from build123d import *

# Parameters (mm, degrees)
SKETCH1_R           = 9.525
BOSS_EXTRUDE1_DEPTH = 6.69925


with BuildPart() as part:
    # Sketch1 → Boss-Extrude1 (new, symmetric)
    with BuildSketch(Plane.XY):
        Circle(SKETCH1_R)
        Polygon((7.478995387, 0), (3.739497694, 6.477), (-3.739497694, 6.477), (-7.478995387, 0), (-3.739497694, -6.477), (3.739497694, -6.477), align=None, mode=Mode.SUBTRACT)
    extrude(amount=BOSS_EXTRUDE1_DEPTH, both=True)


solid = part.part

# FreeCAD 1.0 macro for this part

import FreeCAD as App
import Part
import Sketcher

V = App.Vector
Q = App.Units.Quantity


def add_polygon(sketch, points):
    """Adds a closed chain of lines whose ends are joined by coincident constraints."""
    first, n = sketch.GeometryCount, len(points)
    for a, b in zip(points, points[1:] + points[:1]):
        sketch.addGeometry(Part.LineSegment(App.Vector(*a, 0), App.Vector(*b, 0)), False)
    for i in range(n):
        sketch.addConstraint(Sketcher.Constraint("Coincident", first + i, 2, first + (i + 1) % n, 1))

doc = App.newDocument("Part")
body = doc.addObject("PartDesign::Body", "Body")

sketch1 = body.newObject("Sketcher::SketchObject", "Sketch")
sketch1.AttachmentSupport = (doc.getObject("XY_Plane"), [""])
sketch1.MapMode = "FlatFace"
sketch1.addGeometry(Part.Circle(V(0, 0, 0), V(0, 0, 1), 10), False)
add_polygon(sketch1, [(4, 6), (7, 0), (4, -6), (-4, -6), (-7, 0), (-4, 6)])
sketch1.addConstraint([
    Sketcher.Constraint("Horizontal", 3),
    Sketcher.Constraint("Horizontal", 6),
    Sketcher.Constraint("Coincident", 0, 3, -1, 1),
    Sketcher.Constraint("Symmetric", 1, 2, 4, 2, -1, 1),
    Sketcher.Constraint("Symmetric", 2, 2, 5, 2, -1, 1),
    Sketcher.Constraint("PointOnObject", 1, 2, -1),
    Sketcher.Constraint("Parallel", 1, 4),
    Sketcher.Constraint("Vertical", 3, 2, 5, 2),
    Sketcher.Constraint("Diameter", 0, Q("0.75 in")),
    Sketcher.Constraint("Angle", 1, Q("-60 deg")),
    Sketcher.Constraint("DistanceY", 3, 2, 5, 2, Q("0.51 in")),
    Sketcher.Constraint("DistanceX", 3, 2, 3, 1, Q("7.478995 mm")),
])
pad1 = body.newObject("PartDesign::Pad", "Pad")
pad1.Profile = sketch1
pad1.Length = Q("0.5275 in")
pad1.Midplane = True

doc.recompute()
